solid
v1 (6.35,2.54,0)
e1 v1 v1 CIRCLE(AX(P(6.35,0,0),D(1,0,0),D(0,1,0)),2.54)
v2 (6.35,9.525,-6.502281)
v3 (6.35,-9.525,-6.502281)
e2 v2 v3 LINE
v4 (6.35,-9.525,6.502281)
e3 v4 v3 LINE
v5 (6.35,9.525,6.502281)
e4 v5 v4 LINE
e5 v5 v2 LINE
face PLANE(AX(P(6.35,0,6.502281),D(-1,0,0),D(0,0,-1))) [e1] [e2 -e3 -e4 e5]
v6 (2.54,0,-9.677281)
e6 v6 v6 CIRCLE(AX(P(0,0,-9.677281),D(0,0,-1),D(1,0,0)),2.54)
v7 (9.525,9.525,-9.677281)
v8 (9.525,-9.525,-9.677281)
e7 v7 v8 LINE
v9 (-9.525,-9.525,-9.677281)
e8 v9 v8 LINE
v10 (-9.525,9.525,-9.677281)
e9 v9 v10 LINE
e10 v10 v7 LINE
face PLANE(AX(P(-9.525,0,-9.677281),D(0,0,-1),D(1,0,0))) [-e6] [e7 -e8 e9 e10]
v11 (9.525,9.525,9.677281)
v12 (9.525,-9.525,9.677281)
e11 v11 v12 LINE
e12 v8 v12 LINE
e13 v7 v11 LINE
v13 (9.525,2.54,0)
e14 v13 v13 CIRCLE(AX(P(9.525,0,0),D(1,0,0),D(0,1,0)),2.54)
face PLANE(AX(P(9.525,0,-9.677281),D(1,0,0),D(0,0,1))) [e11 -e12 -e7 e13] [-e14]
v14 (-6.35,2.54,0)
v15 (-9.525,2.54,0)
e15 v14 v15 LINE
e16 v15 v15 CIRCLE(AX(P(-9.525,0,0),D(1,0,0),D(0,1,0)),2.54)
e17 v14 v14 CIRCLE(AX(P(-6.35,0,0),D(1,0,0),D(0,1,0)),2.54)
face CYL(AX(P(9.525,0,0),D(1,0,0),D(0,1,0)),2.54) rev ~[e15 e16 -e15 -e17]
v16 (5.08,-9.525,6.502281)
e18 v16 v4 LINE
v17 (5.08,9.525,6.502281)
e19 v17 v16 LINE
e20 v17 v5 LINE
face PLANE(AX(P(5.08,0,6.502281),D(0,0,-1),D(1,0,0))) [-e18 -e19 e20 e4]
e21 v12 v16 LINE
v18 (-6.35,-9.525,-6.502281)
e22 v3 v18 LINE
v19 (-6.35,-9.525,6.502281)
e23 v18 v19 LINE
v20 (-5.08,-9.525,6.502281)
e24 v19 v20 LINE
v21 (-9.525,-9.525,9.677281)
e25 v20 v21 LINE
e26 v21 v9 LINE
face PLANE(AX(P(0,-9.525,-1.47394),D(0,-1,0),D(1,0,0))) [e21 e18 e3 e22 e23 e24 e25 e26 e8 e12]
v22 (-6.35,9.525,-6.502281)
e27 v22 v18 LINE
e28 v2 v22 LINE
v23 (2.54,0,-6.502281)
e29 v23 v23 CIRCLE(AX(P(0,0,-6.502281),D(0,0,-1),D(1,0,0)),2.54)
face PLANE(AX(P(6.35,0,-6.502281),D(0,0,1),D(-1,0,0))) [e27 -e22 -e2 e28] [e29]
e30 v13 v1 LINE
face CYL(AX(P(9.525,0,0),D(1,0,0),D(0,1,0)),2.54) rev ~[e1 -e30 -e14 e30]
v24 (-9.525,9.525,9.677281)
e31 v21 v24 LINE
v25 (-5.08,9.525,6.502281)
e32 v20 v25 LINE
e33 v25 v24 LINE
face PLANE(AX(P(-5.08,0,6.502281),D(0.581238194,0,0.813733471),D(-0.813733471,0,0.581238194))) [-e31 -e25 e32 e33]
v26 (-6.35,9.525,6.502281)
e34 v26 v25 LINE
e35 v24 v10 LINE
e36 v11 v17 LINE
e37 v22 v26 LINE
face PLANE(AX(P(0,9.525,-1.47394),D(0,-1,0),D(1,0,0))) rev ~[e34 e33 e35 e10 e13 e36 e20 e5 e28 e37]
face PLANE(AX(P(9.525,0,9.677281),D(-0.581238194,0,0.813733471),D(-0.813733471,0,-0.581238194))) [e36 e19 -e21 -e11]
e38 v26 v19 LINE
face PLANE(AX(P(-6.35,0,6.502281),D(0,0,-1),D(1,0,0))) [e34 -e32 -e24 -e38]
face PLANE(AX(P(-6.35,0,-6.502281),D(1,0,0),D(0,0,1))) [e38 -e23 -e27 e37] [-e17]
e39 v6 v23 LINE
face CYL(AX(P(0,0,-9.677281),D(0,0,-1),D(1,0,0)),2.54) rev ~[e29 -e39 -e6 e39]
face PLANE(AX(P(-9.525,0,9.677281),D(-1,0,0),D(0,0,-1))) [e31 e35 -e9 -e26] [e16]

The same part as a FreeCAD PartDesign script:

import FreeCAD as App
import Part
import Sketcher

V = App.Vector
Q = App.Units.Quantity


def add_polygon(sketch, points):
    """Adds a closed chain of lines whose ends are joined by coincident constraints."""
    first, n = sketch.GeometryCount, len(points)
    for a, b in zip(points, points[1:] + points[:1]):
        sketch.addGeometry(Part.LineSegment(App.Vector(*a, 0), App.Vector(*b, 0)), False)
    for i in range(n):
        sketch.addConstraint(Sketcher.Constraint("Coincident", first + i, 2, first + (i + 1) % n, 1))

doc = App.newDocument("Part")
params = doc.addObject("Spreadsheet::Sheet", "Params")
for row, (alias, value) in enumerate([
    ("sketch1_width", "0.5 in"),
    ("sketch1_width2", "0.75 in"),
    ("sketch1_width3", "0.05 in"),
    ("pad1_length", "0.75 in"),
    ("sketch2_diameter", "0.2 in"),
    ("sketch3_diameter", "0.2 in"),
], start=1):
    params.set(f"A{row}", alias)
    params.set(f"B{row}", "=" + value)
    params.setAlias(f"B{row}", alias)

body = doc.addObject("PartDesign::Body", "Body")

sketch1 = body.newObject("Sketcher::SketchObject", "Sketch")
sketch1.AttachmentSupport = (doc.getObject("XZ_Plane"), [""])
sketch1.MapMode = "FlatFace"
add_polygon(sketch1, [(-9.5, -9.7), (9.5, -9.7), (9.5, 9.7), (5.1, 6.5), (6.3, 6.5), (6.3, -6.5), (-6.3, -6.5), (-6.3, 6.5), (-5.1, 6.5), (-9.5, 9.7)])
sketch1.addConstraint([
    Sketcher.Constraint("Horizontal", 0),
    Sketcher.Constraint("Vertical", 1),
    Sketcher.Constraint("Horizontal", 3),
    Sketcher.Constraint("Vertical", 4),
    Sketcher.Constraint("Horizontal", 5),
    Sketcher.Constraint("Vertical", 6),
    Sketcher.Constraint("Horizontal", 7),
    Sketcher.Constraint("Vertical", 9),
    Sketcher.Constraint("Symmetric", 3, 2, 5, 2, -1, 1),
    Sketcher.Constraint("Symmetric", 0, 2, 8, 2, -1, 1),
    Sketcher.Constraint("Symmetric", 2, 2, 7, 2, -2),
    Sketcher.Constraint("Horizontal", 1, 2, 8, 2),
    Sketcher.Constraint("DistanceX", 5, 2, 5, 1, Q("0.5 in")),
    Sketcher.Constraint("DistanceX", 0, 1, 0, 2, Q("0.75 in")),
    Sketcher.Constraint("DistanceX", 3, 1, 3, 2, Q("0.05 in")),
    Sketcher.Constraint("DistanceY", 2, 2, 1, 2, Q("0.125 in")),
    Sketcher.Constraint("DistanceY", 1, 1, 1, 2, 19.354562),
])
sketch1.setExpression("Constraints[22]", "Params.sketch1_width")
sketch1.setExpression("Constraints[23]", "Params.sketch1_width2")
sketch1.setExpression("Constraints[24]", "Params.sketch1_width3")
pad1 = body.newObject("PartDesign::Pad", "Pad")
pad1.Profile = sketch1
pad1.setExpression("Length", "Params.pad1_length")
pad1.Midplane = True

sketch2 = body.newObject("Sketcher::SketchObject", "Sketch001")
sketch2.AttachmentSupport = (doc.getObject("XY_Plane"), [""])
sketch2.MapMode = "FlatFace"
sketch2.AttachmentOffset = App.Placement(V(0, 0, -9.677281), App.Rotation())
sketch2.addGeometry(Part.Circle(V(0, 0, 0), V(0, 0, 1), 2.5), False)
sketch2.addConstraint([
    Sketcher.Constraint("Coincident", 0, 3, -1, 1),
    Sketcher.Constraint("Diameter", 0, Q("0.2 in")),
])
sketch2.setExpression("Constraints[1]", "Params.sketch2_diameter")
pocket1 = body.newObject("PartDesign::Pocket", "Pocket")
pocket1.Profile = sketch2
pocket1.Type = "ThroughAll"
pocket1.Reversed = True

sketch3 = body.newObject("Sketcher::SketchObject", "Sketch002")
sketch3.AttachmentSupport = (doc.getObject("YZ_Plane"), [""])
sketch3.MapMode = "FlatFace"
sketch3.AttachmentOffset = App.Placement(V(0, 0, 0.375 * 25.4), App.Rotation())
sketch3.addGeometry(Part.Circle(V(0, 0, 0), V(0, 0, 1), 2.5), False)
sketch3.addConstraint([
    Sketcher.Constraint("Coincident", 0, 3, -1, 1),
    Sketcher.Constraint("Diameter", 0, Q("0.2 in")),
])
sketch3.setExpression("Constraints[1]", "Params.sketch3_diameter")
pocket2 = body.newObject("PartDesign::Pocket", "Pocket001")
pocket2.Profile = sketch3
pocket2.Type = "ThroughAll"

doc.recompute()
